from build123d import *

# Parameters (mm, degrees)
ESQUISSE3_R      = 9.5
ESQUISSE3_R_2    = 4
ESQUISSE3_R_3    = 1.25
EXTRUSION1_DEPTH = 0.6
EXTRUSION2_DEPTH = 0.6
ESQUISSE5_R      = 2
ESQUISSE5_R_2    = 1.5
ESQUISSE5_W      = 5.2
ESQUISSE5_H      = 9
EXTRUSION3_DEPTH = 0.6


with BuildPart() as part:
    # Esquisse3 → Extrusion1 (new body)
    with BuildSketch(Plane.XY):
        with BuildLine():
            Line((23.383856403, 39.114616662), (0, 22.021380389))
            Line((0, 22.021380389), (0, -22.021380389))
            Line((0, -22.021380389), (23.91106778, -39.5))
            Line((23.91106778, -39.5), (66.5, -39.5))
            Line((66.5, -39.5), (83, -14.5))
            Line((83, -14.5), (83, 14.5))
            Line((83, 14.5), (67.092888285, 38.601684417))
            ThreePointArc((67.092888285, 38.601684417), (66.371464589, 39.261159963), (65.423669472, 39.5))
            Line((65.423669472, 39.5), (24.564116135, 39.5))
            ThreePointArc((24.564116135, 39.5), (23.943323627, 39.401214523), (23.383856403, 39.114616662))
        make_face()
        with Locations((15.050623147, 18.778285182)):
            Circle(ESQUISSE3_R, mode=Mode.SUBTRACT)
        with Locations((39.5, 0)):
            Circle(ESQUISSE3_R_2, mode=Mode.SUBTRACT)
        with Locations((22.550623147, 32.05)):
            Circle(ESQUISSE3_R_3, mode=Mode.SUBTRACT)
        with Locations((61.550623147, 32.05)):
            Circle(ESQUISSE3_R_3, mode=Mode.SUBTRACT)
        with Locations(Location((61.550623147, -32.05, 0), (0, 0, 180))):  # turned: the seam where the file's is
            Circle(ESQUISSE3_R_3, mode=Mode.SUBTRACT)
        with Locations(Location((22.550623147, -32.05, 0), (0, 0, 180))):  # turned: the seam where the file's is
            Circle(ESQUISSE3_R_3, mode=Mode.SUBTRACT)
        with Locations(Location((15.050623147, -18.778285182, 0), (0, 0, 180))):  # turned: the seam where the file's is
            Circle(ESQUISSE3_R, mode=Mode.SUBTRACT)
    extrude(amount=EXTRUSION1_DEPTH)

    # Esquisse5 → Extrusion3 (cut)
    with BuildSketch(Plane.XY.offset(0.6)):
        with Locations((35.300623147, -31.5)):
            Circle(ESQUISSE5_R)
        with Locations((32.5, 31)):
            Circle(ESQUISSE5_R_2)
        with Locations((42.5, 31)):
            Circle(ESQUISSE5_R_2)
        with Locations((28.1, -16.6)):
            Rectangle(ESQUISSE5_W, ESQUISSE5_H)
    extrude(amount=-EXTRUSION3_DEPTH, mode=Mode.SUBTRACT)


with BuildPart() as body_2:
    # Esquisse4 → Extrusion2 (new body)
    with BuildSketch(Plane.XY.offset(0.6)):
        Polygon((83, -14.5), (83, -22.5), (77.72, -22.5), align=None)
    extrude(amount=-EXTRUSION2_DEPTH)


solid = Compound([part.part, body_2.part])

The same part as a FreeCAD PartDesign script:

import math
import FreeCAD as App
import Part
import Sketcher
from FreeCAD import Vector


def add_polygon(sketch, points):
    """Adds a closed chain of lines whose ends are joined by coincident constraints."""
    first, n = sketch.GeometryCount, len(points)
    for a, b in zip(points, points[1:] + points[:1]):
        sketch.addGeometry(Part.LineSegment(App.Vector(*a, 0), App.Vector(*b, 0)), False)
    for i in range(n):
        sketch.addConstraint(Sketcher.Constraint("Coincident", first + i, 2, first + (i + 1) % n, 1))

doc = App.newDocument("Part")
body = doc.addObject("PartDesign::Body", "Body")

# Sketch on XY plane
sketch1 = body.newObject("Sketcher::SketchObject", "Sketch")
sketch1.AttachmentSupport = (doc.getObject("XY_Plane"), [""])
sketch1.MapMode = "FlatFace"
sketch1.addGeometry([
    Part.LineSegment(Vector(23.383856, 39.114617, 0), Vector(0, 22.02138, 0)),  # 0
    Part.LineSegment(Vector(0, 22.02138, 0), Vector(0, -22.02138, 0)),  # 1
    Part.LineSegment(Vector(0, -22.02138, 0), Vector(23.911068, -39.5, 0)),  # 2
    Part.LineSegment(Vector(23.911068, -39.5, 0), Vector(66.5, -39.5, 0)),  # 3
    Part.LineSegment(Vector(66.5, -39.5, 0), Vector(83, -14.5, 0)),  # 4
    Part.LineSegment(Vector(83, -14.5, 0), Vector(83, 14.5, 0)),  # 5
    Part.LineSegment(Vector(83, 14.5, 0), Vector(67.092888, 38.601684, 0)),  # 6
    Part.ArcOfCircle(Part.Circle(Vector(65.423669, 37.5, 0), Vector(0, 0, 1), 2), math.radians(33.424811), math.radians(90)),  # 7
    Part.LineSegment(Vector(65.423669, 39.5, 0), Vector(24.564116, 39.5, 0)),  # 8
    Part.ArcOfCircle(Part.Circle(Vector(24.564116, 37.5, 0), Vector(0, 0, 1), 2), math.radians(90), math.radians(126.166224)),  # 9
    Part.Circle(Vector(15.050623, -18.778285, 0), Vector(0, 0, 1), 9.5),  # 10
    Part.Circle(Vector(22.550623, -32.05, 0), Vector(0, 0, 1), 1.25),  # 11
    Part.Circle(Vector(61.550623, -32.05, 0), Vector(0, 0, 1), 1.25),  # 12
    Part.Circle(Vector(15.050623, 18.778285, 0), Vector(0, 0, 1), 9.5),  # 13
    Part.Circle(Vector(22.550623, 32.05, 0), Vector(0, 0, 1), 1.25),  # 14
    Part.Circle(Vector(39.5, 0, 0), Vector(0, 0, 1), 4),  # 15
    Part.Circle(Vector(61.550623, 32.05, 0), Vector(0, 0, 1), 1.25),  # 16
], False)
sketch1.addConstraint([
    Sketcher.Constraint("Coincident", 0, 2, 1, 1),
    Sketcher.Constraint("Coincident", 1, 2, 2, 1),
    Sketcher.Constraint("Coincident", 2, 2, 3, 1),
    Sketcher.Constraint("Coincident", 3, 2, 4, 1),
    Sketcher.Constraint("Coincident", 4, 2, 5, 1),
    Sketcher.Constraint("Coincident", 5, 2, 6, 1),
    Sketcher.Constraint("Tangent", 6, 2, 7, 1),
    Sketcher.Constraint("Tangent", 7, 2, 8, 1),
    Sketcher.Constraint("Tangent", 8, 2, 9, 1),
    Sketcher.Constraint("Tangent", 9, 2, 0, 1),
    Sketcher.Constraint("Vertical", 1),
    Sketcher.Constraint("Horizontal", 3),
    Sketcher.Constraint("Vertical", 5),
    Sketcher.Constraint("Horizontal", 8),
    Sketcher.Constraint("Equal", 7, 9),
    Sketcher.Constraint("Equal", 11, 12),
    Sketcher.Constraint("Equal", 10, 13),
    Sketcher.Constraint("Equal", 12, 14),
    Sketcher.Constraint("Equal", 14, 16),
    Sketcher.Constraint("Symmetric", 0, 2, 1, 2, -1, 1),
    Sketcher.Constraint("Symmetric", 10, 3, 13, 3, -1),
    Sketcher.Constraint("Symmetric", 11, 3, 14, 3, -1),
    Sketcher.Constraint("Symmetric", 12, 3, 16, 3, -1),
    Sketcher.Constraint("PointOnObject", 15, 3, -1),
    Sketcher.Constraint("Horizontal", 11, 3, 12, 3),
    Sketcher.Constraint("Diameter", 10, 19.0),
    Sketcher.Constraint("Diameter", 15, 8.0),
    Sketcher.Constraint("Radius", 7, 2.0),
    Sketcher.Constraint("Diameter", 11, 2.5),
    Sketcher.Constraint("DistanceY", 5, 1, 5, 2, 29.0),
    Sketcher.Constraint("DistanceX", -1, 1, 4, 2, 83.0),
    Sketcher.Constraint("DistanceX", 11, 3, 12, 3, 39.0),
    Sketcher.Constraint("DistanceX", 15, 3, 3, 2, 27.0),
    Sketcher.Constraint("DistanceY", 3, 2, 4, 2, 25.0),
    Sketcher.Constraint("DistanceY", 4, 2, 7, 3, 52.0),
    Sketcher.Constraint("DistanceY", -1, 1, 7, 3, 37.5),
    Sketcher.Constraint("DistanceX", -1, 1, 15, 3, 39.5),
    Sketcher.Constraint("DistanceX", 10, 3, 11, 3, 7.5),
    Sketcher.Constraint("DistanceY", 11, 3, 14, 3, 64.1),
    Sketcher.Constraint("Distance", 6, 28.877801),
    Sketcher.Constraint("DistanceY", 1, 2, 1, 1, 44.042761),
    Sketcher.Constraint("Distance", 0, 28.965211),
    Sketcher.Constraint("Distance", 2, 29.61826),
    Sketcher.Constraint("DistanceY", 10, 3, 13, 3, 37.55657),
    Sketcher.Constraint("DistanceX", -1, 1, 10, 3, 15.050623),
])
pad1 = body.newObject("PartDesign::Pad", "Pad")
pad1.Profile = sketch1
pad1.Length = 0.6

# Sketch on XY plane
sketch2 = body.newObject("Sketcher::SketchObject", "Sketch001")
sketch2.AttachmentSupport = (doc.getObject("XY_Plane"), [""])
sketch2.MapMode = "FlatFace"
sketch2.AttachmentOffset = App.Placement(Vector(0, 0, 0.6), App.Rotation())
sketch2.addGeometry(Part.Circle(Vector(35.300623, -31.5, 0), Vector(0, 0, 1), 2), False)  # 0
sketch2.addGeometry(Part.Circle(Vector(32.5, 31, 0), Vector(0, 0, 1), 1.5), False)  # 1
sketch2.addGeometry(Part.Circle(Vector(42.5, 31, 0), Vector(0, 0, 1), 1.5), False)  # 2
add_polygon(sketch2, [(25.5, -12.1), (25.5, -21.1), (30.7, -21.1), (30.7, -12.1)])  # lines 3-6
sketch2.addConstraint([
    Sketcher.Constraint("Vertical", 3),
    Sketcher.Constraint("Horizontal", 4),
    Sketcher.Constraint("Vertical", 5),
    Sketcher.Constraint("Horizontal", 6),
    Sketcher.Constraint("Equal", 1, 2),
    Sketcher.Constraint("Horizontal", 1, 3, 2, 3),
    Sketcher.Constraint("Diameter", 0, 4.0),
    Sketcher.Constraint("Diameter", 1, 3.0),
    Sketcher.Constraint("DistanceY", 3, 2, 3, 1, 9.0),
    Sketcher.Constraint("DistanceX", 4, 1, 4, 2, 5.2),
    Sketcher.Constraint("DistanceY", -1, 1, 1, 3, 31.0),
    Sketcher.Constraint("DistanceX", 1, 3, 2, 3, 10.0),
    Sketcher.Constraint("DistanceX", 3, 2, 1, 3, 7.0),
    Sketcher.Constraint("DistanceY", 0, 3, -1, 1, 31.5),
    Sketcher.Constraint("DistanceX", -1, 1, 1, 3, 32.5),
    Sketcher.Constraint("DistanceY", 3, 2, -1, 1, 21.1),
    Sketcher.Constraint("DistanceX", -1, 1, 0, 3, 35.300623),
])
pocket1 = body.newObject("PartDesign::Pocket", "Pocket")
pocket1.Profile = sketch2
pocket1.Length = 0.6
body2 = doc.addObject("PartDesign::Body", "Body001")

# Sketch on XY plane
sketch3 = body2.newObject("Sketcher::SketchObject", "Sketch002")
sketch3.AttachmentSupport = (doc.getObject("XY_Plane001"), [""])
sketch3.MapMode = "FlatFace"
sketch3.AttachmentOffset = App.Placement(Vector(0, 0, 0.6), App.Rotation())
add_polygon(sketch3, [(83, -22.5), (83, -14.5), (77.72, -22.5)])  # lines 0-2
sketch3.addConstraint([
    Sketcher.Constraint("Vertical", 0),
    Sketcher.Constraint("Horizontal", 2),
    Sketcher.Constraint("DistanceY", 0, 1, 0, 2, 8.0),
    Sketcher.Constraint("DistanceX", -1, 1, 0, 2, 83.0),
    Sketcher.Constraint("DistanceX", 2, 1, 2, 2, 5.28),
    Sketcher.Constraint("DistanceY", 0, 2, -1, 1, 14.5),
])
pad2 = body2.newObject("PartDesign::Pad", "Pad001")
pad2.Profile = sketch3
pad2.Length = 0.6
pad2.Reversed = True

doc.recompute()
